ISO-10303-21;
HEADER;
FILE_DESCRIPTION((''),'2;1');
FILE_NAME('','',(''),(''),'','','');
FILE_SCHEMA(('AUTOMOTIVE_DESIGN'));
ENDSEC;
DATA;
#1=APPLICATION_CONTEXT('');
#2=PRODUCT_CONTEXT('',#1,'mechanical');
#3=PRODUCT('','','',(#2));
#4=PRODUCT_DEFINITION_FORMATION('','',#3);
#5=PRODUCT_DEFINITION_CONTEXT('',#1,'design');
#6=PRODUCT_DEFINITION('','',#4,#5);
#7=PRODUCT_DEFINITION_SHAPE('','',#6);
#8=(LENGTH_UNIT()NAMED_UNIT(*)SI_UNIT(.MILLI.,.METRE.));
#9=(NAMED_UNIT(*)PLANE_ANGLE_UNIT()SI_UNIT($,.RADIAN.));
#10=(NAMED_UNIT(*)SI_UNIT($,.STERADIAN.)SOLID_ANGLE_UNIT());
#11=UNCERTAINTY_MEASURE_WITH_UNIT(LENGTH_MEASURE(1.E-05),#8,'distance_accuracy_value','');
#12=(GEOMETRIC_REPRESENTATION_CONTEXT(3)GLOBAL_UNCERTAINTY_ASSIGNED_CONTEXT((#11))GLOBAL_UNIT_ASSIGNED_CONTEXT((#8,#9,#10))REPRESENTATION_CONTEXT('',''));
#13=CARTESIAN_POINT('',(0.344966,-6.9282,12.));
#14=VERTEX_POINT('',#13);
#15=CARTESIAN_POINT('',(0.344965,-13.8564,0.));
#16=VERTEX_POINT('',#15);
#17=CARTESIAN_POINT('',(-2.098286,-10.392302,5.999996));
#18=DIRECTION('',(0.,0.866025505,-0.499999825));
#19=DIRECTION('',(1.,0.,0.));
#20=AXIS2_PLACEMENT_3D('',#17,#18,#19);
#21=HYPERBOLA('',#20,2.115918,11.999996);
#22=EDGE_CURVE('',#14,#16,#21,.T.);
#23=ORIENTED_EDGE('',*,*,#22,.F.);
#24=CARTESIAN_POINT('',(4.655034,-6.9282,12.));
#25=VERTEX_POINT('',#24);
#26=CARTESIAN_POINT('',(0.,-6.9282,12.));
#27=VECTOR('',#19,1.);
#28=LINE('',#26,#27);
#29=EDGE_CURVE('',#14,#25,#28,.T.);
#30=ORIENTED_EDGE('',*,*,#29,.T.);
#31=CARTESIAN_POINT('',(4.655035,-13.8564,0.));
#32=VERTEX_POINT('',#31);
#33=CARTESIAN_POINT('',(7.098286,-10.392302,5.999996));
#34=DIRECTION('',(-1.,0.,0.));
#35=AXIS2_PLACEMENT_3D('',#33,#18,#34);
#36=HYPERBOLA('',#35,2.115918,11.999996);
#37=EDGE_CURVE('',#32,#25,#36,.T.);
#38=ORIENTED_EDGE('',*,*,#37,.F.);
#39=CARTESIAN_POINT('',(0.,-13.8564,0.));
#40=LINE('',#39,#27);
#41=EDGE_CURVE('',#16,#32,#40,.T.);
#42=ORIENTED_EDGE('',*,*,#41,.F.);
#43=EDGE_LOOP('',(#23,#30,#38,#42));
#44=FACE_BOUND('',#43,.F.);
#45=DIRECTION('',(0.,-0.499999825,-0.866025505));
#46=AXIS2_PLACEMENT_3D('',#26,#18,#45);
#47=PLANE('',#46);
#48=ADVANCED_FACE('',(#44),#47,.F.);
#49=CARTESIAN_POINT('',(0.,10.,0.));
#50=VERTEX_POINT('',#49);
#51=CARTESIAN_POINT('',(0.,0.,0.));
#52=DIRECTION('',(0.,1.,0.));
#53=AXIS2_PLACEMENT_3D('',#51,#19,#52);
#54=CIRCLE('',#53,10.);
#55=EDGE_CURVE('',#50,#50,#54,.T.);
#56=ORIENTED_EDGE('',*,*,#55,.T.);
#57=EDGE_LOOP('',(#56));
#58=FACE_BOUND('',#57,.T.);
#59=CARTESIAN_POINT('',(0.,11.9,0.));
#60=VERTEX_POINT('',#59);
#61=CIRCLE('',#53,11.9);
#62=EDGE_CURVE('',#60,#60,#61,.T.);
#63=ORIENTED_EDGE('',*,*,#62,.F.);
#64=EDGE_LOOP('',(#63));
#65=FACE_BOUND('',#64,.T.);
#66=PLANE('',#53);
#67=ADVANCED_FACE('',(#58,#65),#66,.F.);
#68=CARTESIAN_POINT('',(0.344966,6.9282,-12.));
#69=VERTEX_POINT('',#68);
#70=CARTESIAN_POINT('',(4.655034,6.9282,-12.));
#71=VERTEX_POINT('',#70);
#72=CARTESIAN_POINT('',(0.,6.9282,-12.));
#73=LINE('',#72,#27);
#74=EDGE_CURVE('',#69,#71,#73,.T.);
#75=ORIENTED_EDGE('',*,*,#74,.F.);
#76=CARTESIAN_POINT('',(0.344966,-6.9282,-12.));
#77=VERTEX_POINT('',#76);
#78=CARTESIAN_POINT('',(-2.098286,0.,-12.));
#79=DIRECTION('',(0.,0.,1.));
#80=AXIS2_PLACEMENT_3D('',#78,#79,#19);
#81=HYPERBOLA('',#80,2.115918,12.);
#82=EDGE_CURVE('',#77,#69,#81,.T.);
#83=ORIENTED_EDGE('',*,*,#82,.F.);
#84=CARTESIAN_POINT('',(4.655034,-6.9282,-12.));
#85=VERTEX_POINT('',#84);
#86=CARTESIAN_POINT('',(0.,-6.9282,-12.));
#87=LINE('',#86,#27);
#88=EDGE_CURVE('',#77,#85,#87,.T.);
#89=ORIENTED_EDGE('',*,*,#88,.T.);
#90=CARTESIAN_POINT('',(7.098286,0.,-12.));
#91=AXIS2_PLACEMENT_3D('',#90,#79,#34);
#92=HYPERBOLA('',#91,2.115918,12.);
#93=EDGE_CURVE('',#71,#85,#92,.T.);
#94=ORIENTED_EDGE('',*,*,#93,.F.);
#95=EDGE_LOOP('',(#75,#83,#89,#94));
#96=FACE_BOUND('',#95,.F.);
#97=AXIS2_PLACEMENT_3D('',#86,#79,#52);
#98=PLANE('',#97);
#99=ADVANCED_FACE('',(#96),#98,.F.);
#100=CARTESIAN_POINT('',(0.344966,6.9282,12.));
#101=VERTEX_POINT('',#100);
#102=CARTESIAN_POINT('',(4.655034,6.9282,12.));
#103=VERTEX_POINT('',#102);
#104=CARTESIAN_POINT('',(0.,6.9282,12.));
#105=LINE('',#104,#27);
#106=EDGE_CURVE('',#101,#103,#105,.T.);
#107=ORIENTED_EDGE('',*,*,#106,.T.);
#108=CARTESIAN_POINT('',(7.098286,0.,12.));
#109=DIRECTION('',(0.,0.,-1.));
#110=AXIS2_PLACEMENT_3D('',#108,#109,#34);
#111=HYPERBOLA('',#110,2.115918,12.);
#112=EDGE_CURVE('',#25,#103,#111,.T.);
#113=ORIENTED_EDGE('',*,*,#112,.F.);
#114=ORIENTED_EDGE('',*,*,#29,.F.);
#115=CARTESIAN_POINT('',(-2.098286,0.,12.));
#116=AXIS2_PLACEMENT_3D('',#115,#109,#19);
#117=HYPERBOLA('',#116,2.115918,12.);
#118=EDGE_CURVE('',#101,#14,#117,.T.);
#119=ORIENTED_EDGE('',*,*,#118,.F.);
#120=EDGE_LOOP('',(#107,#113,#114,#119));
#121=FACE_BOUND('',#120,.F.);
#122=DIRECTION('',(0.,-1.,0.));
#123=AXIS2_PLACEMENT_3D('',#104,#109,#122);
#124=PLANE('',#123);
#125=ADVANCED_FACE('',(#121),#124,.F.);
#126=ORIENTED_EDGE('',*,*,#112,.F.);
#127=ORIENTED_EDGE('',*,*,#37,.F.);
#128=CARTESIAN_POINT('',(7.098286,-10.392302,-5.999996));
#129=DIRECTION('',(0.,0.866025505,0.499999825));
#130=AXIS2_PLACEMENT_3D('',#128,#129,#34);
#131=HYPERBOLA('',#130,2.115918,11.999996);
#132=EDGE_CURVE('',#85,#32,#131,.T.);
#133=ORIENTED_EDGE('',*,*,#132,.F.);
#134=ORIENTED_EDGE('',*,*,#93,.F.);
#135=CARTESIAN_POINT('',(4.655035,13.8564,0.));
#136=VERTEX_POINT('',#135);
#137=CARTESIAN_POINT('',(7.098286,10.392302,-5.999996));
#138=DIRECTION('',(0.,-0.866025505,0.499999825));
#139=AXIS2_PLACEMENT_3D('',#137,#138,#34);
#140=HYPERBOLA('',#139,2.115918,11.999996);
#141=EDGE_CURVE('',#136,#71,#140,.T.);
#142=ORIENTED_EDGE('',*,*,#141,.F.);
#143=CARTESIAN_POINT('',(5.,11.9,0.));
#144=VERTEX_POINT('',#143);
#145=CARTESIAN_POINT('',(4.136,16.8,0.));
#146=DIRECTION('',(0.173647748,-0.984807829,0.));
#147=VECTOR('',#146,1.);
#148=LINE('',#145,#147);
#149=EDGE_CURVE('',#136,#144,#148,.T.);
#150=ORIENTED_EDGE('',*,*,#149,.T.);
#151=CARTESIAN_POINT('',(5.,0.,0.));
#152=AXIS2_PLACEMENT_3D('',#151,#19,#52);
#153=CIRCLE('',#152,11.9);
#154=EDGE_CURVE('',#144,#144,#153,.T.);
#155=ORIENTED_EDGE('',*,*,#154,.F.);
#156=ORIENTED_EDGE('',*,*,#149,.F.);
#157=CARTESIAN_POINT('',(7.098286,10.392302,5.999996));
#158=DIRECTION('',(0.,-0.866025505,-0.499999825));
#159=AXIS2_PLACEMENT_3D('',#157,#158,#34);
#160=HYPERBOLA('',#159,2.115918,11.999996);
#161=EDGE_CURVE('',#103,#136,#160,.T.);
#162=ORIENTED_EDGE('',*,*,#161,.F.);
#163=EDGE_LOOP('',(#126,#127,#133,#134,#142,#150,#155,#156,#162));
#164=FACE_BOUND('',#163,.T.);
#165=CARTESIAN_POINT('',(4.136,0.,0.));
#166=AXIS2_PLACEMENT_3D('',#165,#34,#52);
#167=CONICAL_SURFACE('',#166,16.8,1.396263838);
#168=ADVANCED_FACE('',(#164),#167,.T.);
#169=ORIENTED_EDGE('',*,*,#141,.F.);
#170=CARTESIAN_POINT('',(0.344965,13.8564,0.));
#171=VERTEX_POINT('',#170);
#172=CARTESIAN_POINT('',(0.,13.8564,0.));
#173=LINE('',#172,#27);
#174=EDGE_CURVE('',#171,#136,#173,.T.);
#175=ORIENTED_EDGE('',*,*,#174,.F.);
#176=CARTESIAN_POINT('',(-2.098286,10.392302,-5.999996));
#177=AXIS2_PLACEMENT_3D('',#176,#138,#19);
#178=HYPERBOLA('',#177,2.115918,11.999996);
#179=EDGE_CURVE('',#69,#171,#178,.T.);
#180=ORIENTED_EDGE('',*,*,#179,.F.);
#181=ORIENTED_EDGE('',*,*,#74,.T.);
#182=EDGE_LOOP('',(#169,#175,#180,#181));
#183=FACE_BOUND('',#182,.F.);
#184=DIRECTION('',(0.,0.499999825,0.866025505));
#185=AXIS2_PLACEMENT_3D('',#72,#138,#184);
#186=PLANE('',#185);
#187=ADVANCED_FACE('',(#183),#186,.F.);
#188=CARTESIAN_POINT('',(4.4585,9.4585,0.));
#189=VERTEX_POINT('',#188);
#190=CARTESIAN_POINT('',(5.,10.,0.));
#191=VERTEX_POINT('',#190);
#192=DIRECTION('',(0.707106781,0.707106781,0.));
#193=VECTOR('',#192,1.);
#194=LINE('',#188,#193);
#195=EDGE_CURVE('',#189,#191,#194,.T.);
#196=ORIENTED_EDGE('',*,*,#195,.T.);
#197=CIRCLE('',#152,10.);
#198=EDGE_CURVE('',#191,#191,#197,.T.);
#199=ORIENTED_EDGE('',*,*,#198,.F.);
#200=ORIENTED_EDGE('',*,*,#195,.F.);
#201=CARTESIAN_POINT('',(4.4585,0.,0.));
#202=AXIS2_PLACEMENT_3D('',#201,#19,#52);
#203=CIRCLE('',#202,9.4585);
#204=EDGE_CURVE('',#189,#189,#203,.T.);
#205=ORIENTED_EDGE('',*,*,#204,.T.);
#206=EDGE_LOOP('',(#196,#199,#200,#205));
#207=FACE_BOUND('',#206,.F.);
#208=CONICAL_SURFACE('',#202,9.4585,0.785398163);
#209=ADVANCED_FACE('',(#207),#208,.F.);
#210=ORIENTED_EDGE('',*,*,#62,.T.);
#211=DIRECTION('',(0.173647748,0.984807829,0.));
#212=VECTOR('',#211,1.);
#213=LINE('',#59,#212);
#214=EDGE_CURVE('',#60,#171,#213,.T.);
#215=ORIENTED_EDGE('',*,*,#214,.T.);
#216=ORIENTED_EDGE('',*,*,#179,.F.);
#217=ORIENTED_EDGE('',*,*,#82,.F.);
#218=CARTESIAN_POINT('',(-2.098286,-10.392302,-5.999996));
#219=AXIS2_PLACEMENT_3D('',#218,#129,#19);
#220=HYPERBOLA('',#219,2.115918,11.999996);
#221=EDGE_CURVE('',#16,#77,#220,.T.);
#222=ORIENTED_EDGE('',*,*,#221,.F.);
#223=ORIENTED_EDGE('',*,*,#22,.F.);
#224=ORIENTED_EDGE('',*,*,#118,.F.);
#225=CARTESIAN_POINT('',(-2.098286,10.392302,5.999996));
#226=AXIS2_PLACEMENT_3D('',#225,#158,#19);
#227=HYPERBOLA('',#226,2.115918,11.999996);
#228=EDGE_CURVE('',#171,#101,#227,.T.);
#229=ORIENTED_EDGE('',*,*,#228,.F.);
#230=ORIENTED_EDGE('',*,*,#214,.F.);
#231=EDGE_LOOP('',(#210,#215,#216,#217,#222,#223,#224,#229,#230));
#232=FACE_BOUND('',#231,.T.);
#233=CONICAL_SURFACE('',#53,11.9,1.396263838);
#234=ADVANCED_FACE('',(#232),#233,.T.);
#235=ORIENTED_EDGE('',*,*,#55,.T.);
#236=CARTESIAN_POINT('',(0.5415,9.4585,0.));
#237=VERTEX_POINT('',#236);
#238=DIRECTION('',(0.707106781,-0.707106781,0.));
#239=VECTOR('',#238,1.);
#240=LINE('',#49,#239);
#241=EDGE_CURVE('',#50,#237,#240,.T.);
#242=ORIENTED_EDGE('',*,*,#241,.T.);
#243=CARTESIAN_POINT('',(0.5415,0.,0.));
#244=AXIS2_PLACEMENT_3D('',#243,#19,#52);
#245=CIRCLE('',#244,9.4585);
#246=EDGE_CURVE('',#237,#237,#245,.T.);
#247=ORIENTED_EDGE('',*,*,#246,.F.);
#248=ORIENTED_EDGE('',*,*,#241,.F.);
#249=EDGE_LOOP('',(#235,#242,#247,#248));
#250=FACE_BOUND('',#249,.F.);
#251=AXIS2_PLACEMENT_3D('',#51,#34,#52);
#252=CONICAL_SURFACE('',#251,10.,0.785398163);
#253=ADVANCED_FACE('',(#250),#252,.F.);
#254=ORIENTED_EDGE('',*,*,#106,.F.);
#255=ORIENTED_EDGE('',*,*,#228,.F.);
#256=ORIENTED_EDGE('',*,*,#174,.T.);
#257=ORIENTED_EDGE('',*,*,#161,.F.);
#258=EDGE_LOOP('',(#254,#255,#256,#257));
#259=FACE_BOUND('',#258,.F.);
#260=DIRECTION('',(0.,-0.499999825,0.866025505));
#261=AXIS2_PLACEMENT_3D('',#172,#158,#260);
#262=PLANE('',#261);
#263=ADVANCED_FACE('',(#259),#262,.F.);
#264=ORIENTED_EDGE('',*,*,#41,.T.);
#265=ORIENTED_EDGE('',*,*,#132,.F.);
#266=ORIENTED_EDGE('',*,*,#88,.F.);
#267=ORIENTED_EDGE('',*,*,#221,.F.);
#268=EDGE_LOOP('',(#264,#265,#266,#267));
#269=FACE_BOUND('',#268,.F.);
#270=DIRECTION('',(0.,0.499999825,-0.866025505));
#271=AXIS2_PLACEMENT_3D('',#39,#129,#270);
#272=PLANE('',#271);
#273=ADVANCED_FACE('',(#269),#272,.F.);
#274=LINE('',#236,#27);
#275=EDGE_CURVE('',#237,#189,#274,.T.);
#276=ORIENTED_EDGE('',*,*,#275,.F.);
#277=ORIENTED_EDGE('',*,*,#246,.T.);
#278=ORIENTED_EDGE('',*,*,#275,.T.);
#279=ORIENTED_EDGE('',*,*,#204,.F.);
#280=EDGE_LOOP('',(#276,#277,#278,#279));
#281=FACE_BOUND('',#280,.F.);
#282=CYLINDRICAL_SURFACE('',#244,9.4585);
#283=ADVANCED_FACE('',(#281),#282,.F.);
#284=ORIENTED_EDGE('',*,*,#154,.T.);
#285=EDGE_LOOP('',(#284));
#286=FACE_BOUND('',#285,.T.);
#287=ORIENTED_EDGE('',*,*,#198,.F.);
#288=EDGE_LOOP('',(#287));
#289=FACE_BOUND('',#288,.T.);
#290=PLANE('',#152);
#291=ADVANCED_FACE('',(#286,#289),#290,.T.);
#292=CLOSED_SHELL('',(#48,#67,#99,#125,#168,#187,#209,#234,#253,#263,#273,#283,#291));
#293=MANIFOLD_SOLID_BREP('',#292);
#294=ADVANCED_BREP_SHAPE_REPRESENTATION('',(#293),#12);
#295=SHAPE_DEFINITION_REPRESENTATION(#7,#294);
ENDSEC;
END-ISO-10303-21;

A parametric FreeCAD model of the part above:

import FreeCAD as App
import Part
import Sketcher
Q = App.Units.Quantity

doc = App.newDocument("Part")
body = doc.addObject("PartDesign::Body", "Body")

sketch1 = body.newObject("Sketcher::SketchObject", "Sketch")
sketch1.AttachmentSupport = (doc.getObject("XY_Plane"), [""])
sketch1.MapMode = "FlatFace"
sketch1.addGeometry(Part.LineSegment(App.Vector(0, 0, 0), App.Vector(5, 0, 0)), False)
sketch1.addGeometry(Part.LineSegment(App.Vector(5, 0, 0), App.Vector(5, 11.9, 0)), False)
sketch1.addGeometry(Part.LineSegment(App.Vector(5, 11.9, 0), App.Vector(4.1, 16.8, 0)), False)
sketch1.addGeometry(Part.LineSegment(App.Vector(4.1, 16.8, 0), App.Vector(0.9, 16.8, 0)), False)
sketch1.addGeometry(Part.LineSegment(App.Vector(0.9, 16.8, 0), App.Vector(0, 11.9, 0)), False)
sketch1.addGeometry(Part.LineSegment(App.Vector(0, 11.9, 0), App.Vector(0, 0, 0)), False)
sketch1.addConstraint(Sketcher.Constraint("Coincident", 0, 2, 1, 1))
sketch1.addConstraint(Sketcher.Constraint("Coincident", 1, 2, 2, 1))
sketch1.addConstraint(Sketcher.Constraint("Coincident", 2, 2, 3, 1))
sketch1.addConstraint(Sketcher.Constraint("Coincident", 3, 2, 4, 1))
sketch1.addConstraint(Sketcher.Constraint("Coincident", 4, 2, 5, 1))
sketch1.addConstraint(Sketcher.Constraint("Coincident", 5, 2, 0, 1))
sketch1.addConstraint(Sketcher.Constraint("Horizontal", 0))
sketch1.addConstraint(Sketcher.Constraint("Vertical", 1))
sketch1.addConstraint(Sketcher.Constraint("Horizontal", 3))
sketch1.addConstraint(Sketcher.Constraint("Vertical", 5))
sketch1.addConstraint(Sketcher.Constraint("Coincident", 5, 2, -1, 1))
sketch1.addConstraint(Sketcher.Constraint("Horizontal", 1, 2, 4, 2))
sketch1.addConstraint(Sketcher.Constraint("Equal", 2, 4))
sketch1.addConstraint(Sketcher.Constraint("DistanceX", 0, 1, 0, 2, Q("5 mm")))
sketch1.addConstraint(Sketcher.Constraint("Angle", 2, Q("100 deg")))
sketch1.addConstraint(Sketcher.Constraint("DistanceY", 1, 1, 1, 2, Q("11.9 mm")))
sketch1.addConstraint(Sketcher.Constraint("DistanceY", -1, 1, 2, 2, Q("16.8 mm")))
revolution = body.newObject("PartDesign::Revolution", "Revolution")
revolution.Profile = sketch1
revolution.ReferenceAxis = (sketch1, ["H_Axis"])
revolution.Angle = 360

sketch2 = body.newObject("Sketcher::SketchObject", "Sketch001")
sketch2.AttachmentSupport = (doc.getObject("XY_Plane"), [""])
sketch2.MapMode = "FlatFace"
sketch2.addGeometry(Part.LineSegment(App.Vector(0, 0, 0), App.Vector(5, 0, 0)), False)
sketch2.addGeometry(Part.LineSegment(App.Vector(5, 0, 0), App.Vector(5, 10, 0)), False)
sketch2.addGeometry(Part.LineSegment(App.Vector(5, 10, 0), App.Vector(4.5, 9.5, 0)), False)
sketch2.addGeometry(Part.LineSegment(App.Vector(4.5, 9.5, 0), App.Vector(0.5, 9.5, 0)), False)
sketch2.addGeometry(Part.LineSegment(App.Vector(0.5, 9.5, 0), App.Vector(0, 10, 0)), False)
sketch2.addGeometry(Part.LineSegment(App.Vector(0, 10, 0), App.Vector(0, 0, 0)), False)
sketch2.addConstraint(Sketcher.Constraint("Coincident", 0, 2, 1, 1))
sketch2.addConstraint(Sketcher.Constraint("Coincident", 1, 2, 2, 1))
sketch2.addConstraint(Sketcher.Constraint("Coincident", 2, 2, 3, 1))
sketch2.addConstraint(Sketcher.Constraint("Coincident", 3, 2, 4, 1))
sketch2.addConstraint(Sketcher.Constraint("Coincident", 4, 2, 5, 1))
sketch2.addConstraint(Sketcher.Constraint("Coincident", 5, 2, 0, 1))
sketch2.addConstraint(Sketcher.Constraint("Horizontal", 0))
sketch2.addConstraint(Sketcher.Constraint("Vertical", 1))
sketch2.addConstraint(Sketcher.Constraint("Horizontal", 3))
sketch2.addConstraint(Sketcher.Constraint("Vertical", 5))
sketch2.addConstraint(Sketcher.Constraint("Coincident", 5, 2, -1, 1))
sketch2.addConstraint(Sketcher.Constraint("Perpendicular", 2, 4))
sketch2.addConstraint(Sketcher.Constraint("Horizontal", 1, 2, 4, 2))
sketch2.addConstraint(Sketcher.Constraint("Equal", 2, 4))
sketch2.addConstraint(Sketcher.Constraint("DistanceX", 0, 1, 0, 2, Q("5 mm")))
sketch2.addConstraint(Sketcher.Constraint("DistanceY", 1, 1, 1, 2, Q("10 mm")))
sketch2.addConstraint(Sketcher.Constraint("DistanceX", 3, 2, 3, 1, Q("3.917 mm")))
groove = body.newObject("PartDesign::Groove", "Groove")
groove.Profile = sketch2
groove.ReferenceAxis = (sketch2, ["H_Axis"])
groove.Angle = 360

sketch3 = body.newObject("Sketcher::SketchObject", "Sketch002")
sketch3.AttachmentSupport = (doc.getObject("YZ_Plane"), [""])
sketch3.MapMode = "FlatFace"
sketch3.addGeometry(Part.LineSegment(App.Vector(24, -24, 0), App.Vector(24, 24, 0)), False)
sketch3.addGeometry(Part.LineSegment(App.Vector(24, 24, 0), App.Vector(-24, 24, 0)), False)
sketch3.addGeometry(Part.LineSegment(App.Vector(-24, 24, 0), App.Vector(-24, -24, 0)), False)
sketch3.addGeometry(Part.LineSegment(App.Vector(-24, -24, 0), App.Vector(24, -24, 0)), False)
sketch3.addGeometry(Part.LineSegment(App.Vector(-14, 0, 0), App.Vector(-7, 12, 0)), False)
sketch3.addGeometry(Part.LineSegment(App.Vector(-7, 12, 0), App.Vector(7, 12, 0)), False)
sketch3.addGeometry(Part.LineSegment(App.Vector(7, 12, 0), App.Vector(14, 0, 0)), False)
sketch3.addGeometry(Part.LineSegment(App.Vector(14, 0, 0), App.Vector(7, -12, 0)), False)
sketch3.addGeometry(Part.LineSegment(App.Vector(7, -12, 0), App.Vector(-7, -12, 0)), False)
sketch3.addGeometry(Part.LineSegment(App.Vector(-7, -12, 0), App.Vector(-14, 0, 0)), False)
sketch3.addConstraint(Sketcher.Constraint("Coincident", 0, 2, 1, 1))
sketch3.addConstraint(Sketcher.Constraint("Coincident", 1, 2, 2, 1))
sketch3.addConstraint(Sketcher.Constraint("Coincident", 2, 2, 3, 1))
sketch3.addConstraint(Sketcher.Constraint("Coincident", 3, 2, 0, 1))
sketch3.addConstraint(Sketcher.Constraint("Coincident", 4, 2, 5, 1))
sketch3.addConstraint(Sketcher.Constraint("Coincident", 5, 2, 6, 1))
sketch3.addConstraint(Sketcher.Constraint("Coincident", 6, 2, 7, 1))
sketch3.addConstraint(Sketcher.Constraint("Coincident", 7, 2, 8, 1))
sketch3.addConstraint(Sketcher.Constraint("Coincident", 8, 2, 9, 1))
sketch3.addConstraint(Sketcher.Constraint("Coincident", 9, 2, 4, 1))
sketch3.addConstraint(Sketcher.Constraint("Vertical", 0))
sketch3.addConstraint(Sketcher.Constraint("Horizontal", 1))
sketch3.addConstraint(Sketcher.Constraint("Vertical", 2))
sketch3.addConstraint(Sketcher.Constraint("Horizontal", 3))
sketch3.addConstraint(Sketcher.Constraint("Horizontal", 5))
sketch3.addConstraint(Sketcher.Constraint("Horizontal", 8))
sketch3.addConstraint(Sketcher.Constraint("Symmetric", 0, 2, 2, 2, -1, 1))
sketch3.addConstraint(Sketcher.Constraint("Symmetric", 4, 2, 7, 2, -1, 1))
sketch3.addConstraint(Sketcher.Constraint("Symmetric", 6, 2, 9, 2, -1, 1))
sketch3.addConstraint(Sketcher.Constraint("PointOnObject", 6, 2, -1))
sketch3.addConstraint(Sketcher.Constraint("Parallel", 6, 9))
sketch3.addConstraint(Sketcher.Constraint("Vertical", 5, 2, 7, 2))
sketch3.addConstraint(Sketcher.Constraint("Equal", 3, 0))
sketch3.addConstraint(Sketcher.Constraint("DistanceX", 1, 2, 1, 1, Q("48 mm")))
sketch3.addConstraint(Sketcher.Constraint("Angle", 4, Q("60 deg")))
sketch3.addConstraint(Sketcher.Constraint("DistanceY", -1, 1, 4, 2, Q("12 mm")))
sketch3.addConstraint(Sketcher.Constraint("DistanceX", 5, 1, 5, 2, Q("13.8564 mm")))
pocket1 = body.newObject("PartDesign::Pocket", "Pocket")
pocket1.Profile = sketch3
pocket1.Length = 5
pocket1.Reversed = True

doc.recompute()
